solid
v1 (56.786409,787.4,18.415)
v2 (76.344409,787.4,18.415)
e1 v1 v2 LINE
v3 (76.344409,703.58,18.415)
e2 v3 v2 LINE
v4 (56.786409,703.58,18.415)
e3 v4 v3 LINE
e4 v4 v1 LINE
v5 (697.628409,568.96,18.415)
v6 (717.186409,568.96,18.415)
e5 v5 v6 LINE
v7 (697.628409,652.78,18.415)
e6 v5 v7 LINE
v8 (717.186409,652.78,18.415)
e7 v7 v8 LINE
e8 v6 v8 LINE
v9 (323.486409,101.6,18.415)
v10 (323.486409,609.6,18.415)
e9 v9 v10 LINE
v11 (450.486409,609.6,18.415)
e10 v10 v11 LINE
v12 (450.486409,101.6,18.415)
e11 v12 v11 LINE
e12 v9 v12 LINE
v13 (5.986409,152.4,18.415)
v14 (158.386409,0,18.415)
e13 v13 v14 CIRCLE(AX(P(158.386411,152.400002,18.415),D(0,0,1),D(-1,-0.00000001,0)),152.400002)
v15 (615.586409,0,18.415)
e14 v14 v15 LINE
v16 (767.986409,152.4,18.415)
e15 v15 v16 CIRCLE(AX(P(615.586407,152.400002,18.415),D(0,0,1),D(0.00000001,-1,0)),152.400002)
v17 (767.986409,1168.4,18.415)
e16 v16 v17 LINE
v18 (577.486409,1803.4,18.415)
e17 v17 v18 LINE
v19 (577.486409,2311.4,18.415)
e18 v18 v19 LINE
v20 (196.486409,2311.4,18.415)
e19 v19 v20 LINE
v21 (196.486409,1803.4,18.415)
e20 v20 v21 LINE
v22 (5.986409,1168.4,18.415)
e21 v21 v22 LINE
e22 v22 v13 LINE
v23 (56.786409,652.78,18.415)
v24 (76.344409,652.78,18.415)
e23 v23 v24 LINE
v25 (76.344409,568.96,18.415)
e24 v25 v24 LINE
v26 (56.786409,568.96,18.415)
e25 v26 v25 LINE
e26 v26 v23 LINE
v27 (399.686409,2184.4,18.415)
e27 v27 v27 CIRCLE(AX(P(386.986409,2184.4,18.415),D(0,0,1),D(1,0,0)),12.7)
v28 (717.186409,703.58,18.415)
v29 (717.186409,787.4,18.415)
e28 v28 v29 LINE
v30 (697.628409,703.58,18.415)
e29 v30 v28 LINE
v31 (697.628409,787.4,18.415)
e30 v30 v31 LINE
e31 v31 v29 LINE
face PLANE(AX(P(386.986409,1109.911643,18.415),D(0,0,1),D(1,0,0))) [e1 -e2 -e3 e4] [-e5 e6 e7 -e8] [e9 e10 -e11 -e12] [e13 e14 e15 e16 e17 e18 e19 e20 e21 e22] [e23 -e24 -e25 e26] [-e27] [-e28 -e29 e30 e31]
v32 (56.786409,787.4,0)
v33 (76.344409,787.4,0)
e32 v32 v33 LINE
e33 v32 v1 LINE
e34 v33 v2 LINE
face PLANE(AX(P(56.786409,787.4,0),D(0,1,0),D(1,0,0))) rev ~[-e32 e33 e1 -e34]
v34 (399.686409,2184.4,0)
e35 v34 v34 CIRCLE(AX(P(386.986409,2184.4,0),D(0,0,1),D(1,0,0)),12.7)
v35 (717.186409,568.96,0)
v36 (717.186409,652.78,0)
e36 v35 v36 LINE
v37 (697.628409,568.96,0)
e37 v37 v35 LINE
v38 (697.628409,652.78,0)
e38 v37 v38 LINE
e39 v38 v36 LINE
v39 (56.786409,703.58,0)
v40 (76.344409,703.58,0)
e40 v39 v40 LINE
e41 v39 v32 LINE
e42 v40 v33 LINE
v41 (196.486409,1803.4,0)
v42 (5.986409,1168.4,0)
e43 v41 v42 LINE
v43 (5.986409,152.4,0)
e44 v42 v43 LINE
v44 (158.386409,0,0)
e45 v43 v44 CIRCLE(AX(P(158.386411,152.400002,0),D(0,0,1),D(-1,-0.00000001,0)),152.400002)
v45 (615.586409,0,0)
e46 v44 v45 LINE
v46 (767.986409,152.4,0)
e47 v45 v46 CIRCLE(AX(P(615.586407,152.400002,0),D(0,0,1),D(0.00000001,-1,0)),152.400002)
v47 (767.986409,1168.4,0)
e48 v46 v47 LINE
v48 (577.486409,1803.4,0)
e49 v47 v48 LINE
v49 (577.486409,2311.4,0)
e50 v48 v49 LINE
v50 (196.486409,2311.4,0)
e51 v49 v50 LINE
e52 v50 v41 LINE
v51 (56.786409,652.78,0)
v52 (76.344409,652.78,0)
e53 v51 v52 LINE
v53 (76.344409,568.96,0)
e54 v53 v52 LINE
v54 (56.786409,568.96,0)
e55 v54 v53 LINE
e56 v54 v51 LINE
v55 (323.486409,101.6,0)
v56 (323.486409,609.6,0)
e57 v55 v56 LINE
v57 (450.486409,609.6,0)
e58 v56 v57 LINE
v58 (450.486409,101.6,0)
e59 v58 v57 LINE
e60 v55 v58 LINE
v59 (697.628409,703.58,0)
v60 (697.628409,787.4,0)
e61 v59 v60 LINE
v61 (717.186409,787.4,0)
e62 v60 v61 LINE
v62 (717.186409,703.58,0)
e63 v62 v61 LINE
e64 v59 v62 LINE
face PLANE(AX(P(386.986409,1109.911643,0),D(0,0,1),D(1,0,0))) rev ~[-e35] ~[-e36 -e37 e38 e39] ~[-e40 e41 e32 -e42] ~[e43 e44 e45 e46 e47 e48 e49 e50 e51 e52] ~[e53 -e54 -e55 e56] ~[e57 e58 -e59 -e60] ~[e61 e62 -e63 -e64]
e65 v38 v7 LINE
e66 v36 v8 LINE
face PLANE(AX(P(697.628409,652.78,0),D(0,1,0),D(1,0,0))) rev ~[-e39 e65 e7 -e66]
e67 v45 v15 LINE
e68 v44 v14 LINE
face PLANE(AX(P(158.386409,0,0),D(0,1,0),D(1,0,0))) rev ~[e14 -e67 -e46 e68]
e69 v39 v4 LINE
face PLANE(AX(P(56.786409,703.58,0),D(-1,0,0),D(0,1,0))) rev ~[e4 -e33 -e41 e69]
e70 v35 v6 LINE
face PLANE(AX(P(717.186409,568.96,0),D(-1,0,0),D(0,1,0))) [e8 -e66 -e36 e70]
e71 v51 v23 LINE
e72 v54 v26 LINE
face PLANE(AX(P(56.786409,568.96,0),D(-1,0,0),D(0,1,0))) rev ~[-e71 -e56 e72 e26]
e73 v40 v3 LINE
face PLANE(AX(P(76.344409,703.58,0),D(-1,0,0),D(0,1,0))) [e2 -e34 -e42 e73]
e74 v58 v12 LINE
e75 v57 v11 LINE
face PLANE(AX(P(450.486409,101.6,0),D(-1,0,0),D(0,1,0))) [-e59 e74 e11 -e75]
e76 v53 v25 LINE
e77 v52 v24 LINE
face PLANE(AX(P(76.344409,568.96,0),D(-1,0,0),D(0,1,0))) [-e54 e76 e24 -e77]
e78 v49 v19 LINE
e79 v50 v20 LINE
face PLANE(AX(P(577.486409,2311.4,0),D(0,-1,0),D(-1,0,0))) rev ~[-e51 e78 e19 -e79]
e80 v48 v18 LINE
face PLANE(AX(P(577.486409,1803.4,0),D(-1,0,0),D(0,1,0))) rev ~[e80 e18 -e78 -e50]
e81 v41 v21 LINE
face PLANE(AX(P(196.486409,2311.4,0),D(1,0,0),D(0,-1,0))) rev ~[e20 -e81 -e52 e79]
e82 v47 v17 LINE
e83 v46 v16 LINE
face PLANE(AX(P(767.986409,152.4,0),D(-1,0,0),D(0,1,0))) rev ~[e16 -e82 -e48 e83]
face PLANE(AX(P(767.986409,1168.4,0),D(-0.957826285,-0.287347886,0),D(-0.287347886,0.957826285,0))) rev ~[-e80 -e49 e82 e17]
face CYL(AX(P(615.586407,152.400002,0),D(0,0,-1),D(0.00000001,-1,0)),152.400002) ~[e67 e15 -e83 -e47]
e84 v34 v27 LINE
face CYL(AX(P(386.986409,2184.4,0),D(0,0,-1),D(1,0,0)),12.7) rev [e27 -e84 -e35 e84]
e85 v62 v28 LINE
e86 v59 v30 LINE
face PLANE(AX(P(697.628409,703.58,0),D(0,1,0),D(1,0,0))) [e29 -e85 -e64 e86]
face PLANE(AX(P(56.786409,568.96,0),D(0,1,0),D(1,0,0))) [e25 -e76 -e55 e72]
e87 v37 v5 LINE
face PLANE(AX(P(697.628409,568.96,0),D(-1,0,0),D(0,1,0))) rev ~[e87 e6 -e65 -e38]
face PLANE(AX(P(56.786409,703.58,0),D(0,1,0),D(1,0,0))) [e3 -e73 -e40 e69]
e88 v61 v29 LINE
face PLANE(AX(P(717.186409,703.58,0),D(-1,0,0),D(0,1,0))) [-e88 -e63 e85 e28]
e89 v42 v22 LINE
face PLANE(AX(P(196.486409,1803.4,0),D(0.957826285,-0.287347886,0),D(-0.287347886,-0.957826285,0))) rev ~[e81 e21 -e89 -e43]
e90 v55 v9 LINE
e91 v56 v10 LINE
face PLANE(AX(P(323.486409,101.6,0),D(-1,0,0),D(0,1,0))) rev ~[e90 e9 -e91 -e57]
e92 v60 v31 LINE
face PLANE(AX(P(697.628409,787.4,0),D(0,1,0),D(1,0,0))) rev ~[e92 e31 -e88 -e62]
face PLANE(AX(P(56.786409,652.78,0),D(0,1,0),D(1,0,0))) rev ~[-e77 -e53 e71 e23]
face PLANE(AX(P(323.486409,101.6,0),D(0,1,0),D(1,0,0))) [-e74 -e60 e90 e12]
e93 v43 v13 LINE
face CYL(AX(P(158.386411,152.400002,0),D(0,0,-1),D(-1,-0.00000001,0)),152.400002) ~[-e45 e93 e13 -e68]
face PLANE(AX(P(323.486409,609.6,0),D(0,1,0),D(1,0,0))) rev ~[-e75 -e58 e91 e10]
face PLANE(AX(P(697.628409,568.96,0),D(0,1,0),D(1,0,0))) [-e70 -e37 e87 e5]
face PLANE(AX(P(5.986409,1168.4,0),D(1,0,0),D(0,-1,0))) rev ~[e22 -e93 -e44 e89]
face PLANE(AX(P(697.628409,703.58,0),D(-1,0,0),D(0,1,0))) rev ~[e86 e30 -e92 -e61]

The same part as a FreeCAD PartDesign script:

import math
import FreeCAD as App
import Part
import Sketcher

V = App.Vector
Q = App.Units.Quantity

doc = App.newDocument("Part")
body = doc.addObject("PartDesign::Body", "Body")

# Sketch on XY plane
sketch1 = body.newObject("Sketcher::SketchObject", "Sketch")
sketch1.AttachmentSupport = (doc.getObject("XY_Plane"), [""])
sketch1.MapMode = "FlatFace"
sketch1.addGeometry(Part.ArcOfCircle(Part.Circle(V(158, 152, 0), V(0, 0, 1), 152), math.radians(-180), math.radians(-90)), False)
sketch1.addGeometry(Part.LineSegment(V(158, 0, 0), V(616, 0, 0)), False)
sketch1.addGeometry(Part.ArcOfCircle(Part.Circle(V(616, 152, 0), V(0, 0, 1), 152), math.radians(-90), math.radians(0)), False)
sketch1.addGeometry(Part.LineSegment(V(768, 152, 0), V(768, 1168, 0)), False)
sketch1.addGeometry(Part.LineSegment(V(768, 1168, 0), V(577, 1803, 0)), False)
sketch1.addGeometry(Part.LineSegment(V(577, 1803, 0), V(577, 2311, 0)), False)
sketch1.addGeometry(Part.LineSegment(V(577, 2311, 0), V(196, 2311, 0)), False)
sketch1.addGeometry(Part.LineSegment(V(196, 2311, 0), V(196, 1803, 0)), False)
sketch1.addGeometry(Part.LineSegment(V(196, 1803, 0), V(6, 1168, 0)), False)
sketch1.addGeometry(Part.LineSegment(V(6, 1168, 0), V(6, 152, 0)), False)
sketch1.addGeometry(Part.LineSegment(V(76, 569, 0), V(57, 569, 0)), False)
sketch1.addGeometry(Part.LineSegment(V(57, 569, 0), V(57, 653, 0)), False)
sketch1.addGeometry(Part.LineSegment(V(57, 653, 0), V(76, 653, 0)), False)
sketch1.addGeometry(Part.LineSegment(V(76, 653, 0), V(76, 569, 0)), False)
sketch1.addGeometry(Part.LineSegment(V(450, 102, 0), V(323, 102, 0)), False)
sketch1.addGeometry(Part.LineSegment(V(323, 102, 0), V(323, 610, 0)), False)
sketch1.addGeometry(Part.LineSegment(V(323, 610, 0), V(450, 610, 0)), False)
sketch1.addGeometry(Part.LineSegment(V(450, 610, 0), V(450, 102, 0)), False)
sketch1.addGeometry(Part.LineSegment(V(76, 704, 0), V(57, 704, 0)), False)
sketch1.addGeometry(Part.LineSegment(V(57, 704, 0), V(57, 787, 0)), False)
sketch1.addGeometry(Part.LineSegment(V(57, 787, 0), V(76, 787, 0)), False)
sketch1.addGeometry(Part.LineSegment(V(76, 787, 0), V(76, 704, 0)), False)
sketch1.addGeometry(Part.LineSegment(V(717, 569, 0), V(698, 569, 0)), False)
sketch1.addGeometry(Part.LineSegment(V(698, 569, 0), V(698, 653, 0)), False)
sketch1.addGeometry(Part.LineSegment(V(698, 653, 0), V(717, 653, 0)), False)
sketch1.addGeometry(Part.LineSegment(V(717, 653, 0), V(717, 569, 0)), False)
sketch1.addGeometry(Part.LineSegment(V(717, 704, 0), V(698, 704, 0)), False)
sketch1.addGeometry(Part.LineSegment(V(698, 704, 0), V(698, 787, 0)), False)
sketch1.addGeometry(Part.LineSegment(V(698, 787, 0), V(717, 787, 0)), False)
sketch1.addGeometry(Part.LineSegment(V(717, 787, 0), V(717, 704, 0)), False)
sketch1.addGeometry(Part.Circle(V(387, 2184, 0), V(0, 0, 1), 13), False)
sketch1.addConstraint(Sketcher.Constraint("Tangent", 0, 2, 1, 1))
sketch1.addConstraint(Sketcher.Constraint("Tangent", 1, 2, 2, 1))
sketch1.addConstraint(Sketcher.Constraint("Tangent", 2, 2, 3, 1))
sketch1.addConstraint(Sketcher.Constraint("Coincident", 3, 2, 4, 1))
sketch1.addConstraint(Sketcher.Constraint("Coincident", 4, 2, 5, 1))
sketch1.addConstraint(Sketcher.Constraint("Coincident", 5, 2, 6, 1))
sketch1.addConstraint(Sketcher.Constraint("Coincident", 6, 2, 7, 1))
sketch1.addConstraint(Sketcher.Constraint("Coincident", 7, 2, 8, 1))
sketch1.addConstraint(Sketcher.Constraint("Coincident", 8, 2, 9, 1))
sketch1.addConstraint(Sketcher.Constraint("Tangent", 9, 2, 0, 1))
sketch1.addConstraint(Sketcher.Constraint("Coincident", 10, 2, 11, 1))
sketch1.addConstraint(Sketcher.Constraint("Coincident", 11, 2, 12, 1))
sketch1.addConstraint(Sketcher.Constraint("Coincident", 12, 2, 13, 1))
sketch1.addConstraint(Sketcher.Constraint("Coincident", 13, 2, 10, 1))
sketch1.addConstraint(Sketcher.Constraint("Coincident", 14, 2, 15, 1))
sketch1.addConstraint(Sketcher.Constraint("Coincident", 15, 2, 16, 1))
sketch1.addConstraint(Sketcher.Constraint("Coincident", 16, 2, 17, 1))
sketch1.addConstraint(Sketcher.Constraint("Coincident", 17, 2, 14, 1))
sketch1.addConstraint(Sketcher.Constraint("Coincident", 18, 2, 19, 1))
sketch1.addConstraint(Sketcher.Constraint("Coincident", 19, 2, 20, 1))
sketch1.addConstraint(Sketcher.Constraint("Coincident", 20, 2, 21, 1))
sketch1.addConstraint(Sketcher.Constraint("Coincident", 21, 2, 18, 1))
sketch1.addConstraint(Sketcher.Constraint("Coincident", 22, 2, 23, 1))
sketch1.addConstraint(Sketcher.Constraint("Coincident", 23, 2, 24, 1))
sketch1.addConstraint(Sketcher.Constraint("Coincident", 24, 2, 25, 1))
sketch1.addConstraint(Sketcher.Constraint("Coincident", 25, 2, 22, 1))
sketch1.addConstraint(Sketcher.Constraint("Coincident", 26, 2, 27, 1))
sketch1.addConstraint(Sketcher.Constraint("Coincident", 27, 2, 28, 1))
sketch1.addConstraint(Sketcher.Constraint("Coincident", 28, 2, 29, 1))
sketch1.addConstraint(Sketcher.Constraint("Coincident", 29, 2, 26, 1))
sketch1.addConstraint(Sketcher.Constraint("Horizontal", 1))
sketch1.addConstraint(Sketcher.Constraint("Vertical", 3))
sketch1.addConstraint(Sketcher.Constraint("Vertical", 5))
sketch1.addConstraint(Sketcher.Constraint("Horizontal", 6))
sketch1.addConstraint(Sketcher.Constraint("Vertical", 7))
sketch1.addConstraint(Sketcher.Constraint("Vertical", 9))
sketch1.addConstraint(Sketcher.Constraint("Horizontal", 10))
sketch1.addConstraint(Sketcher.Constraint("Vertical", 11))
sketch1.addConstraint(Sketcher.Constraint("Horizontal", 12))
sketch1.addConstraint(Sketcher.Constraint("Vertical", 13))
sketch1.addConstraint(Sketcher.Constraint("Horizontal", 14))
sketch1.addConstraint(Sketcher.Constraint("Vertical", 15))
sketch1.addConstraint(Sketcher.Constraint("Horizontal", 16))
sketch1.addConstraint(Sketcher.Constraint("Vertical", 17))
sketch1.addConstraint(Sketcher.Constraint("Horizontal", 18))
sketch1.addConstraint(Sketcher.Constraint("Vertical", 19))
sketch1.addConstraint(Sketcher.Constraint("Horizontal", 20))
sketch1.addConstraint(Sketcher.Constraint("Vertical", 21))
sketch1.addConstraint(Sketcher.Constraint("Horizontal", 22))
sketch1.addConstraint(Sketcher.Constraint("Vertical", 23))
sketch1.addConstraint(Sketcher.Constraint("Horizontal", 24))
sketch1.addConstraint(Sketcher.Constraint("Vertical", 25))
sketch1.addConstraint(Sketcher.Constraint("Horizontal", 26))
sketch1.addConstraint(Sketcher.Constraint("Vertical", 27))
sketch1.addConstraint(Sketcher.Constraint("Horizontal", 28))
sketch1.addConstraint(Sketcher.Constraint("Vertical", 29))
sketch1.addConstraint(Sketcher.Constraint("Equal", 0, 2))
sketch1.addConstraint(Sketcher.Constraint("PointOnObject", 0, 2, -1))
sketch1.addConstraint(Sketcher.Constraint("Horizontal", 4, 2, 7, 2))
sketch1.addConstraint(Sketcher.Constraint("Horizontal", 3, 2, 8, 2))
sketch1.addConstraint(Sketcher.Constraint("Horizontal", 13, 2, 22, 2))
sketch1.addConstraint(Sketcher.Constraint("Horizontal", 12, 2, 23, 2))
sketch1.addConstraint(Sketcher.Constraint("Horizontal", 21, 2, 26, 2))
sketch1.addConstraint(Sketcher.Constraint("Horizontal", 20, 2, 27, 2))
sketch1.addConstraint(Sketcher.Constraint("Vertical", 11, 2, 18, 2))
sketch1.addConstraint(Sketcher.Constraint("Vertical", 13, 2, 20, 2))
sketch1.addConstraint(Sketcher.Constraint("Vertical", 23, 2, 26, 2))
sketch1.addConstraint(Sketcher.Constraint("Vertical", 25, 2, 28, 2))
sketch1.addConstraint(Sketcher.Constraint("Equal", 20, 22))
sketch1.addConstraint(Sketcher.Constraint("Equal", 7, 15))
sketch1.addConstraint(Sketcher.Constraint("Equal", 13, 19))
sketch1.addConstraint(Sketcher.Constraint("Equal", 4, 8))
sketch1.addConstraint(Sketcher.Constraint("Diameter", 30, Q("1 in")))
sketch1.addConstraint(Sketcher.Constraint("Radius", 0, Q("6.0000001 in")))
sketch1.addConstraint(Sketcher.Constraint("DistanceX", 1, 1, 1, 2, Q("18 in")))
sketch1.addConstraint(Sketcher.Constraint("DistanceX", 6, 2, 6, 1, Q("15 in")))
sketch1.addConstraint(Sketcher.Constraint("DistanceX", 14, 2, 14, 1, Q("5 in")))
sketch1.addConstraint(Sketcher.Constraint("DistanceY", 3, 1, 3, 2, Q("40 in")))
sketch1.addConstraint(Sketcher.Constraint("DistanceY", 5, 1, 5, 2, Q("20 in")))
sketch1.addConstraint(Sketcher.Constraint("DistanceY", 11, 1, 11, 2, Q("3.3 in")))
sketch1.addConstraint(Sketcher.Constraint("DistanceY", -1, 1, 30, 3, Q("86 in")))
sketch1.addConstraint(Sketcher.Constraint("DistanceY", -1, 1, 4, 2, Q("71 in")))
sketch1.addConstraint(Sketcher.Constraint("DistanceY", -1, 1, 14, 2, Q("4 in")))
sketch1.addConstraint(Sketcher.Constraint("DistanceY", -1, 1, 19, 2, Q("31 in")))
sketch1.addConstraint(Sketcher.Constraint("DistanceX", 0, 3, 30, 3, Q("8.9999999 in")))
sketch1.addConstraint(Sketcher.Constraint("DistanceX", 9, 2, 10, 2, Q("2 in")))
sketch1.addConstraint(Sketcher.Constraint("DistanceY", 11, 2, 18, 2, Q("2 in")))
sketch1.addConstraint(Sketcher.Constraint("DistanceX", 24, 2, 2, 2, Q("2 in")))
sketch1.addConstraint(Sketcher.Constraint("DistanceX", 10, 2, 10, 1, Q("0.77 in")))
sketch1.addConstraint(Sketcher.Constraint("DistanceX", 0, 3, 14, 2, Q("6.4999999 in")))
sketch1.addConstraint(Sketcher.Constraint("DistanceX", -1, 1, 0, 3, 158.386411))
pad1 = body.newObject("PartDesign::Pad", "Pad")
pad1.Profile = sketch1
pad1.Length = Q("0.725 in")

doc.recompute()
